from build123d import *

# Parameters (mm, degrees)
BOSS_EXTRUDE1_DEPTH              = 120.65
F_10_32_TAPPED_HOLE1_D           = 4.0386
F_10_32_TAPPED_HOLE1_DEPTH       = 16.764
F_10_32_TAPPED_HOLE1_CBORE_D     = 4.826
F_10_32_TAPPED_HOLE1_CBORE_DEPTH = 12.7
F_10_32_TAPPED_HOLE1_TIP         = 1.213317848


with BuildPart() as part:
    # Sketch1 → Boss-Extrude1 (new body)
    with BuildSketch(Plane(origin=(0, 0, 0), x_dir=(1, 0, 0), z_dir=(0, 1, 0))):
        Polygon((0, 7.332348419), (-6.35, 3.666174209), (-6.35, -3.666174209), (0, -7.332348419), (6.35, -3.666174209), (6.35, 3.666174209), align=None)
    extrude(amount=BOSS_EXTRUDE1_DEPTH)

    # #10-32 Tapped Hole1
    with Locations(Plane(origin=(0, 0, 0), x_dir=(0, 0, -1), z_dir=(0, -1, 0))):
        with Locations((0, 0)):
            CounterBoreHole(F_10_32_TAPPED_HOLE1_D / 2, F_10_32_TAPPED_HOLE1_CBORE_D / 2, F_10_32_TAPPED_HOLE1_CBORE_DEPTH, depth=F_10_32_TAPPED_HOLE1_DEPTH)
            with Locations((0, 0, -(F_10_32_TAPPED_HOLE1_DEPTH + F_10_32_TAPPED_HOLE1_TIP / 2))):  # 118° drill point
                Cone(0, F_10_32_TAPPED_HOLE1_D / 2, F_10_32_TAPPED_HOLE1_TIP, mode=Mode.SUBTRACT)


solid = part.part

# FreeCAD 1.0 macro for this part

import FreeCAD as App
import Part
import Sketcher
from FreeCAD import Vector
Q = App.Units.Quantity


def add_polygon(sketch, points):
    """Adds a closed chain of lines whose ends are joined by coincident constraints."""
    first, n = sketch.GeometryCount, len(points)
    for a, b in zip(points, points[1:] + points[:1]):
        sketch.addGeometry(Part.LineSegment(App.Vector(*a, 0), App.Vector(*b, 0)), False)
    for i in range(n):
        sketch.addConstraint(Sketcher.Constraint("Coincident", first + i, 2, first + (i + 1) % n, 1))

doc = App.newDocument("Part")
params = doc.addObject("Spreadsheet::Sheet", "Params")
for row, (alias, value) in enumerate([
    ("pad1_length", "4.75 in"),
    ("sketch2_diameter", "0.159 in"),
    ("hole_diameter", "0.159 in"),
    ("hole_depth", "0.66 in"),
    ("hole_cbore_diameter", "0.19 in"),
    ("hole_cbore_depth", "0.5 in"),
], start=1):
    params.set(f"A{row}", alias)
    params.set(f"B{row}", "=" + value)
    params.setAlias(f"B{row}", alias)

body = doc.addObject("PartDesign::Body", "Body")

# Sketch on XZ plane
sketch1 = body.newObject("Sketcher::SketchObject", "Sketch")
sketch1.AttachmentSupport = (doc.getObject("XZ_Plane"), [""])
sketch1.MapMode = "FlatFace"
add_polygon(sketch1, [(0, -7), (-6, -4), (-6, 4), (0, 7), (6, 4), (6, -4)])  # lines 0-5
sketch1.addConstraint([
    Sketcher.Constraint("Vertical", 1),
    Sketcher.Constraint("Vertical", 4),
    Sketcher.Constraint("Symmetric", 0, 2, 3, 2, -1, 1),
    Sketcher.Constraint("Symmetric", 2, 2, 5, 2, -1, 1),
    Sketcher.Constraint("PointOnObject", 2, 2, -2),
    Sketcher.Constraint("Parallel", 2, 5),
    Sketcher.Constraint("Horizontal", 1, 2, 3, 2),
    Sketcher.Constraint("Angle", 0, Q("150 deg")),
    Sketcher.Constraint("DistanceX", 1, 2, 3, 2, Q("0.5 in")),
    Sketcher.Constraint("DistanceY", 1, 1, 1, 2, Q("7.332348 mm")),
])
pad1 = body.newObject("PartDesign::Pad", "Pad")
pad1.Profile = sketch1
pad1.setExpression("Length", "Params.pad1_length")
pad1.Reversed = True

# Sketch on XZ plane
sketch2 = body.newObject("Sketcher::SketchObject", "Sketch001")
sketch2.AttachmentSupport = (doc.getObject("XZ_Plane"), [""])
sketch2.MapMode = "FlatFace"
sketch2.addGeometry(Part.Circle(Vector(0, 0, 0), Vector(0, 0, 1), 2), False)
sketch2.addConstraint([
    Sketcher.Constraint("Coincident", 0, 3, -1, 1),
    Sketcher.Constraint("Diameter", 0, Q("0.159 in")),
])
sketch2.setExpression("Constraints[1]", "Params.sketch2_diameter")
doc.recompute()
hole = body.newObject("PartDesign::Hole", "Hole")
hole.Profile = sketch2
hole.ThreadType = "None"
hole.setExpression("Diameter", "Params.hole_diameter")
hole.DepthType = "Dimension"
hole.setExpression("Depth", "Params.hole_depth")
hole.DrillPoint = "Angled"
hole.DrillPointAngle = 118
hole.HoleCutType = "Counterbore"
hole.setExpression("HoleCutDiameter", "Params.hole_cbore_diameter")
hole.setExpression("HoleCutDepth", "Params.hole_cbore_depth")

doc.recompute()
